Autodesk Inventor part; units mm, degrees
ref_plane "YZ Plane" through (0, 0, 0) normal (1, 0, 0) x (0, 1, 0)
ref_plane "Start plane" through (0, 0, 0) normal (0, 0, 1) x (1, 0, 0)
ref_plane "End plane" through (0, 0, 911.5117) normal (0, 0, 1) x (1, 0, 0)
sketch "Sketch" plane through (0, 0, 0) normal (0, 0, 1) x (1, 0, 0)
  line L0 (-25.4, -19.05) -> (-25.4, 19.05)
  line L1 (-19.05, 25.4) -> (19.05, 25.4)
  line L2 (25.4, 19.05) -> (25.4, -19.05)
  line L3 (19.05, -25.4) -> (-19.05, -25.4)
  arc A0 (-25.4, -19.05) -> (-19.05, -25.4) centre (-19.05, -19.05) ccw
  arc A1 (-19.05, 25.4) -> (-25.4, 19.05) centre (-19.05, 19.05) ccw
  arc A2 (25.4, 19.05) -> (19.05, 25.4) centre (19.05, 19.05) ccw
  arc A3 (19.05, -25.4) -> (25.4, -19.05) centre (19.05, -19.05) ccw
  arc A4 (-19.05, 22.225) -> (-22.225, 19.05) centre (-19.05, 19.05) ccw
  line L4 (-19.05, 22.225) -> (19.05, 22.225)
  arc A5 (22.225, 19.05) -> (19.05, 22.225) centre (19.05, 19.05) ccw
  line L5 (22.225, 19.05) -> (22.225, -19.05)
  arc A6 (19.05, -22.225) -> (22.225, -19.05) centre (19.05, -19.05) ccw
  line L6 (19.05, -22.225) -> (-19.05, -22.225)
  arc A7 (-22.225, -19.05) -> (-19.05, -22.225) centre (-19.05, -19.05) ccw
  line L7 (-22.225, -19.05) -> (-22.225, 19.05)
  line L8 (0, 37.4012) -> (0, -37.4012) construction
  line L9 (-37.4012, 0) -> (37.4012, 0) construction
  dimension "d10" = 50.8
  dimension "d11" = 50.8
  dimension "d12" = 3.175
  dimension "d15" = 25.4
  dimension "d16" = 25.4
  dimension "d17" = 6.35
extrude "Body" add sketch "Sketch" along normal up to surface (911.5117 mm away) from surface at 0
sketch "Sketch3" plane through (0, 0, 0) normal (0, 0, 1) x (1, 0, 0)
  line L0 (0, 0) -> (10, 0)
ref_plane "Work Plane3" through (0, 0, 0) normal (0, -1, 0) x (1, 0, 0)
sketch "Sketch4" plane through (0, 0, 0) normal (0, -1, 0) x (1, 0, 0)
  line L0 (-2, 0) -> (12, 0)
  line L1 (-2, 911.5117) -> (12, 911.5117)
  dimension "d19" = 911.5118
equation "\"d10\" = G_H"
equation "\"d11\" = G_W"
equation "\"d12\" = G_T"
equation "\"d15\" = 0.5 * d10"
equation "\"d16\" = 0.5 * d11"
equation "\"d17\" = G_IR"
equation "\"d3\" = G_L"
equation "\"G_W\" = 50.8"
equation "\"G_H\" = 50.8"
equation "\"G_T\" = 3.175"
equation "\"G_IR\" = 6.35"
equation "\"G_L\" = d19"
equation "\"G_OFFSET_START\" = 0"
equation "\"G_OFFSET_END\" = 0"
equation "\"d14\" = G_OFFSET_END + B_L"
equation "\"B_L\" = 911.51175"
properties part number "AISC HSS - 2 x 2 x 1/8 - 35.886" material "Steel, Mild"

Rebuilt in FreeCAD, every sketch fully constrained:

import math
import FreeCAD as App
import Part
import Sketcher
from FreeCAD import Vector
Q = App.Units.Quantity

doc = App.newDocument("Part")
params = doc.addObject("Spreadsheet::Sheet", "Params")
for row, (alias, value) in enumerate([
    ("sketch1_radius", "0.25 in"),
    ("sketch1_radius2", "0.125 in"),
    ("pad1_length", "911.5117 mm"),
], start=1):
    params.set(f"A{row}", alias)
    params.set(f"B{row}", "=" + value)
    params.setAlias(f"B{row}", alias)

body = doc.addObject("PartDesign::Body", "Body")

# Sketch on XY plane
sketch1 = body.newObject("Sketcher::SketchObject", "Sketch")
sketch1.AttachmentSupport = (doc.getObject("XY_Plane"), [""])
sketch1.MapMode = "FlatFace"
sketch1.addGeometry(Part.LineSegment(Vector(-25.4, 19.1, 0), Vector(-25.4, -19.1, 0)), False)
sketch1.addGeometry(Part.ArcOfCircle(Part.Circle(Vector(-19.1, -19.1, 0), Vector(0, 0, 1), 6.3), math.radians(180), math.radians(270)), False)
sketch1.addGeometry(Part.LineSegment(Vector(-19.1, -25.4, 0), Vector(19.1, -25.4, 0)), False)
sketch1.addGeometry(Part.ArcOfCircle(Part.Circle(Vector(19.1, -19.1, 0), Vector(0, 0, 1), 6.3), math.radians(-90), math.radians(0)), False)
sketch1.addGeometry(Part.LineSegment(Vector(25.4, -19.1, 0), Vector(25.4, 19.1, 0)), False)
sketch1.addGeometry(Part.ArcOfCircle(Part.Circle(Vector(19.1, 19.1, 0), Vector(0, 0, 1), 6.3), math.radians(0), math.radians(90)), False)
sketch1.addGeometry(Part.LineSegment(Vector(19.1, 25.4, 0), Vector(-19.1, 25.4, 0)), False)
sketch1.addGeometry(Part.ArcOfCircle(Part.Circle(Vector(-19.1, 19.1, 0), Vector(0, 0, 1), 6.3), math.radians(90), math.radians(180)), False)
sketch1.addGeometry(Part.ArcOfCircle(Part.Circle(Vector(-19.1, 19.1, 0), Vector(0, 0, 1), 3.2), math.radians(90), math.radians(180)), False)
sketch1.addGeometry(Part.LineSegment(Vector(-19.1, 22.2, 0), Vector(19.1, 22.2, 0)), False)
sketch1.addGeometry(Part.ArcOfCircle(Part.Circle(Vector(19.1, 19.1, 0), Vector(0, 0, 1), 3.2), math.radians(0), math.radians(90)), False)
sketch1.addGeometry(Part.LineSegment(Vector(22.2, 19.1, 0), Vector(22.2, -19.1, 0)), False)
sketch1.addGeometry(Part.ArcOfCircle(Part.Circle(Vector(19.1, -19.1, 0), Vector(0, 0, 1), 3.2), math.radians(-90), math.radians(0)), False)
sketch1.addGeometry(Part.LineSegment(Vector(19.1, -22.2, 0), Vector(-19.1, -22.2, 0)), False)
sketch1.addGeometry(Part.ArcOfCircle(Part.Circle(Vector(-19.1, -19.1, 0), Vector(0, 0, 1), 3.2), math.radians(180), math.radians(270)), False)
sketch1.addGeometry(Part.LineSegment(Vector(-22.2, -19.1, 0), Vector(-22.2, 19.1, 0)), False)
sketch1.addConstraint(Sketcher.Constraint("Tangent", 0, 2, 1, 1))
sketch1.addConstraint(Sketcher.Constraint("Tangent", 1, 2, 2, 1))
sketch1.addConstraint(Sketcher.Constraint("Tangent", 2, 2, 3, 1))
sketch1.addConstraint(Sketcher.Constraint("Tangent", 3, 2, 4, 1))
sketch1.addConstraint(Sketcher.Constraint("Tangent", 4, 2, 5, 1))
sketch1.addConstraint(Sketcher.Constraint("Tangent", 5, 2, 6, 1))
sketch1.addConstraint(Sketcher.Constraint("Tangent", 6, 2, 7, 1))
sketch1.addConstraint(Sketcher.Constraint("Tangent", 7, 2, 0, 1))
sketch1.addConstraint(Sketcher.Constraint("Tangent", 8, 1, 9, 1))
sketch1.addConstraint(Sketcher.Constraint("Tangent", 9, 2, 10, 2))
sketch1.addConstraint(Sketcher.Constraint("Tangent", 10, 1, 11, 1))
sketch1.addConstraint(Sketcher.Constraint("Tangent", 11, 2, 12, 2))
sketch1.addConstraint(Sketcher.Constraint("Tangent", 12, 1, 13, 1))
sketch1.addConstraint(Sketcher.Constraint("Tangent", 13, 2, 14, 2))
sketch1.addConstraint(Sketcher.Constraint("Tangent", 14, 1, 15, 1))
sketch1.addConstraint(Sketcher.Constraint("Tangent", 15, 2, 8, 2))
sketch1.addConstraint(Sketcher.Constraint("Vertical", 0))
sketch1.addConstraint(Sketcher.Constraint("Horizontal", 2))
sketch1.addConstraint(Sketcher.Constraint("Vertical", 4))
sketch1.addConstraint(Sketcher.Constraint("Horizontal", 6))
sketch1.addConstraint(Sketcher.Constraint("Horizontal", 9))
sketch1.addConstraint(Sketcher.Constraint("Vertical", 11))
sketch1.addConstraint(Sketcher.Constraint("Horizontal", 13))
sketch1.addConstraint(Sketcher.Constraint("Vertical", 15))
sketch1.addConstraint(Sketcher.Constraint("Coincident", 8, 3, 7, 3))
sketch1.addConstraint(Sketcher.Constraint("Coincident", 10, 3, 5, 3))
sketch1.addConstraint(Sketcher.Constraint("Coincident", 12, 3, 3, 3))
sketch1.addConstraint(Sketcher.Constraint("Equal", 1, 3))
sketch1.addConstraint(Sketcher.Constraint("Equal", 3, 5))
sketch1.addConstraint(Sketcher.Constraint("Equal", 5, 7))
sketch1.addConstraint(Sketcher.Constraint("Equal", 12, 14))
sketch1.addConstraint(Sketcher.Constraint("Symmetric", 1, 3, 5, 3, -1, 1))
sketch1.addConstraint(Sketcher.Constraint("Equal", 13, 0))
sketch1.addConstraint(Sketcher.Constraint("Radius", 1, Q("0.25 in")))
sketch1.addConstraint(Sketcher.Constraint("DistanceX", 0, 2, -1, 1, Q("1 in")))
sketch1.addConstraint(Sketcher.Constraint("Radius", 8, Q("0.125 in")))
sketch1.setExpression("Constraints[33]", "Params.sketch1_radius")
sketch1.setExpression("Constraints[35]", "Params.sketch1_radius2")
pad1 = body.newObject("PartDesign::Pad", "Pad")
pad1.Profile = sketch1
pad1.setExpression("Length", "Params.pad1_length")

doc.recompute()
